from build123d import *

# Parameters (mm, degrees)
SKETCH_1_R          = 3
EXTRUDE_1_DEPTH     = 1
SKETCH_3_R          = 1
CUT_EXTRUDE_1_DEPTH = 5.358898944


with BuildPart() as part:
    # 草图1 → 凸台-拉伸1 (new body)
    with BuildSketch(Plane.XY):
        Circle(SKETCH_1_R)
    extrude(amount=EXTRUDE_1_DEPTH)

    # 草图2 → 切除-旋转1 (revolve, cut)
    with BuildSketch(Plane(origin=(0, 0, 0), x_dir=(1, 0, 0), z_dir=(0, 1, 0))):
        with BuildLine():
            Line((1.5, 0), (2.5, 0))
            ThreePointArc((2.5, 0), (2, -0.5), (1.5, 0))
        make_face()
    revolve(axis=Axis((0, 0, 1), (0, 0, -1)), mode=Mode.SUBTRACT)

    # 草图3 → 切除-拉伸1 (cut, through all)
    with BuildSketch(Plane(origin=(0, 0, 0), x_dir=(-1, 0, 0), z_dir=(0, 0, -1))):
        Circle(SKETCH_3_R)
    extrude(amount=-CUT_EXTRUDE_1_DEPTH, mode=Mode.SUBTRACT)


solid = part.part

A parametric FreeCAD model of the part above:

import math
import FreeCAD as App
import Part
import Sketcher
Q = App.Units.Quantity

doc = App.newDocument("Part")
body = doc.addObject("PartDesign::Body", "Body")

# Sketch on XY plane
sketch1 = body.newObject("Sketcher::SketchObject", "Sketch")
sketch1.AttachmentSupport = (doc.getObject("XY_Plane"), [""])
sketch1.MapMode = "FlatFace"
sketch1.addGeometry(Part.Circle(App.Vector(0, 0, 0), App.Vector(0, 0, 1), 3), False)
sketch1.addConstraint([
    Sketcher.Constraint("Coincident", 0, 3, -1, 1),
    Sketcher.Constraint("Diameter", 0, Q("6 mm")),
])
pad1 = body.newObject("PartDesign::Pad", "Pad")
pad1.Profile = sketch1
pad1.Length = 1

# Sketch on XZ plane
sketch2 = body.newObject("Sketcher::SketchObject", "Sketch001")
sketch2.AttachmentSupport = (doc.getObject("XZ_Plane"), [""])
sketch2.MapMode = "FlatFace"
sketch2.addGeometry([
    Part.LineSegment(App.Vector(2.5, 0, 0), App.Vector(1.5, 0, 0)),
    Part.ArcOfCircle(Part.Circle(App.Vector(2, 0, 0), App.Vector(0, 0, 1), 0.5), math.radians(0), math.radians(180)),
], False)
sketch2.addConstraint([
    Sketcher.Constraint("Coincident", 0, 1, 1, 1),
    Sketcher.Constraint("Coincident", 1, 2, 0, 2),
    Sketcher.Constraint("Horizontal", 0),
    Sketcher.Constraint("PointOnObject", 1, 3, -1),
    Sketcher.Constraint("PointOnObject", 0, 1, -1),
    Sketcher.Constraint("Radius", 1, Q("0.5 mm")),
    Sketcher.Constraint("DistanceX", -1, 1, 1, 3, Q("2 mm")),
])
groove = body.newObject("PartDesign::Groove", "Groove")
groove.Profile = sketch2
groove.ReferenceAxis = (sketch2, ["V_Axis"])
groove.Angle = 360

# Sketch on XY plane
sketch3 = body.newObject("Sketcher::SketchObject", "Sketch002")
sketch3.AttachmentSupport = (doc.getObject("XY_Plane"), [""])
sketch3.MapMode = "FlatFace"
sketch3.addGeometry(Part.Circle(App.Vector(0, 0, 0), App.Vector(0, 0, 1), 1), False)
sketch3.addConstraint([
    Sketcher.Constraint("Coincident", 0, 3, -1, 1),
    Sketcher.Constraint("Diameter", 0, Q("2 mm")),
])
pocket1 = body.newObject("PartDesign::Pocket", "Pocket")
pocket1.Profile = sketch3
pocket1.Type = "ThroughAll"
pocket1.Reversed = True

doc.recompute()
